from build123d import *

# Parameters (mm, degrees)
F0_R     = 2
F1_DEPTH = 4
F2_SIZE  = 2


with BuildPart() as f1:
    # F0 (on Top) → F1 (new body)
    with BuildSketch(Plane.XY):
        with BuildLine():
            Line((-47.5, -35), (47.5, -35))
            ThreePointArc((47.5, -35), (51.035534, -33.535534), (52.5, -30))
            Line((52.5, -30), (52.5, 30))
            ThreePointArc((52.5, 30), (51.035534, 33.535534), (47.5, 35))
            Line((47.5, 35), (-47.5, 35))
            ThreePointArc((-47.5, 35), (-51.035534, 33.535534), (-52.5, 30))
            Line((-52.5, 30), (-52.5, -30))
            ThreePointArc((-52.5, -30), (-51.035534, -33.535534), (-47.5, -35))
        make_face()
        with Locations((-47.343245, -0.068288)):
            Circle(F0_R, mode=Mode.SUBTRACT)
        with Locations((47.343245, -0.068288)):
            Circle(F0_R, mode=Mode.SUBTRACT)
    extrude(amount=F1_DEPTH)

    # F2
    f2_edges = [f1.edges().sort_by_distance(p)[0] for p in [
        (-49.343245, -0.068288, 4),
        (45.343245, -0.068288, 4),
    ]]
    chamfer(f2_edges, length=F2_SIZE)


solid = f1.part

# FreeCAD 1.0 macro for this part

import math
import FreeCAD as App
import Part
import Sketcher

V = App.Vector
Q = App.Units.Quantity


def edges_at(feature, points):
    """Names of the edges that pass closest to the given points."""
    edges = feature.Shape.Edges
    near = lambda p: min(range(len(edges)), key=lambda i: edges[i].distToShape(Part.Vertex(*p))[0])
    return sorted({f"Edge{near(p) + 1}" for p in points})

doc = App.newDocument("Part")
body = doc.addObject("PartDesign::Body", "Body")

# Sketch on XY plane
sketch1 = body.newObject("Sketcher::SketchObject", "Sketch")
sketch1.AttachmentSupport = (doc.getObject("XY_Plane"), [""])
sketch1.MapMode = "FlatFace"
sketch1.addGeometry([
    Part.LineSegment(V(-47.5, -35, 0), V(47.5, -35, 0)),  # 0
    Part.ArcOfCircle(Part.Circle(V(47.5, -30, 0), V(0, 0, 1), 5), math.radians(-90), math.radians(0)),  # 1
    Part.LineSegment(V(52.5, -30, 0), V(52.5, 30, 0)),  # 2
    Part.ArcOfCircle(Part.Circle(V(47.5, 30, 0), V(0, 0, 1), 5), math.radians(0), math.radians(90)),  # 3
    Part.LineSegment(V(47.5, 35, 0), V(-47.5, 35, 0)),  # 4
    Part.ArcOfCircle(Part.Circle(V(-47.5, 30, 0), V(0, 0, 1), 5), math.radians(90), math.radians(180)),  # 5
    Part.LineSegment(V(-52.5, 30, 0), V(-52.5, -30, 0)),  # 6
    Part.ArcOfCircle(Part.Circle(V(-47.5, -30, 0), V(0, 0, 1), 5), math.radians(180), math.radians(270)),  # 7
    Part.Circle(V(-47.3, -0.1, 0), V(0, 0, 1), 2),  # 8
    Part.Circle(V(47.3, -0.1, 0), V(0, 0, 1), 2),  # 9
], False)
sketch1.addConstraint([
    Sketcher.Constraint("Tangent", 0, 2, 1, 1),
    Sketcher.Constraint("Tangent", 1, 2, 2, 1),
    Sketcher.Constraint("Tangent", 2, 2, 3, 1),
    Sketcher.Constraint("Tangent", 3, 2, 4, 1),
    Sketcher.Constraint("Tangent", 4, 2, 5, 1),
    Sketcher.Constraint("Tangent", 5, 2, 6, 1),
    Sketcher.Constraint("Tangent", 6, 2, 7, 1),
    Sketcher.Constraint("Tangent", 7, 2, 0, 1),
    Sketcher.Constraint("Horizontal", 0),
    Sketcher.Constraint("Vertical", 2),
    Sketcher.Constraint("Horizontal", 4),
    Sketcher.Constraint("Vertical", 6),
    Sketcher.Constraint("Equal", 1, 3),
    Sketcher.Constraint("Equal", 3, 5),
    Sketcher.Constraint("Equal", 5, 7),
    Sketcher.Constraint("Equal", 8, 9),
    Sketcher.Constraint("Symmetric", 1, 3, 5, 3, -1, 1),
    Sketcher.Constraint("Symmetric", 8, 3, 9, 3, -2),
    Sketcher.Constraint("Diameter", 8, Q("4 mm")),
    Sketcher.Constraint("Radius", 1, Q("5 mm")),
    Sketcher.Constraint("DistanceX", 0, 1, 0, 2, Q("95 mm")),
    Sketcher.Constraint("DistanceY", 2, 1, 2, 2, Q("60 mm")),
    Sketcher.Constraint("DistanceY", 8, 3, 5, 3, Q("30.068288 mm")),
    Sketcher.Constraint("DistanceX", 8, 3, 9, 3, Q("94.68649 mm")),
])
pad1 = body.newObject("PartDesign::Pad", "Pad")
pad1.Profile = sketch1
pad1.Length = 4
doc.recompute()

chamfer = body.newObject("PartDesign::Chamfer", "Chamfer")
chamfer.Base = (pad1, edges_at(pad1, [(-49.343, -0.068, 4), (45.343, -0.068, 4)]))
chamfer.Size = 2

doc.recompute()
